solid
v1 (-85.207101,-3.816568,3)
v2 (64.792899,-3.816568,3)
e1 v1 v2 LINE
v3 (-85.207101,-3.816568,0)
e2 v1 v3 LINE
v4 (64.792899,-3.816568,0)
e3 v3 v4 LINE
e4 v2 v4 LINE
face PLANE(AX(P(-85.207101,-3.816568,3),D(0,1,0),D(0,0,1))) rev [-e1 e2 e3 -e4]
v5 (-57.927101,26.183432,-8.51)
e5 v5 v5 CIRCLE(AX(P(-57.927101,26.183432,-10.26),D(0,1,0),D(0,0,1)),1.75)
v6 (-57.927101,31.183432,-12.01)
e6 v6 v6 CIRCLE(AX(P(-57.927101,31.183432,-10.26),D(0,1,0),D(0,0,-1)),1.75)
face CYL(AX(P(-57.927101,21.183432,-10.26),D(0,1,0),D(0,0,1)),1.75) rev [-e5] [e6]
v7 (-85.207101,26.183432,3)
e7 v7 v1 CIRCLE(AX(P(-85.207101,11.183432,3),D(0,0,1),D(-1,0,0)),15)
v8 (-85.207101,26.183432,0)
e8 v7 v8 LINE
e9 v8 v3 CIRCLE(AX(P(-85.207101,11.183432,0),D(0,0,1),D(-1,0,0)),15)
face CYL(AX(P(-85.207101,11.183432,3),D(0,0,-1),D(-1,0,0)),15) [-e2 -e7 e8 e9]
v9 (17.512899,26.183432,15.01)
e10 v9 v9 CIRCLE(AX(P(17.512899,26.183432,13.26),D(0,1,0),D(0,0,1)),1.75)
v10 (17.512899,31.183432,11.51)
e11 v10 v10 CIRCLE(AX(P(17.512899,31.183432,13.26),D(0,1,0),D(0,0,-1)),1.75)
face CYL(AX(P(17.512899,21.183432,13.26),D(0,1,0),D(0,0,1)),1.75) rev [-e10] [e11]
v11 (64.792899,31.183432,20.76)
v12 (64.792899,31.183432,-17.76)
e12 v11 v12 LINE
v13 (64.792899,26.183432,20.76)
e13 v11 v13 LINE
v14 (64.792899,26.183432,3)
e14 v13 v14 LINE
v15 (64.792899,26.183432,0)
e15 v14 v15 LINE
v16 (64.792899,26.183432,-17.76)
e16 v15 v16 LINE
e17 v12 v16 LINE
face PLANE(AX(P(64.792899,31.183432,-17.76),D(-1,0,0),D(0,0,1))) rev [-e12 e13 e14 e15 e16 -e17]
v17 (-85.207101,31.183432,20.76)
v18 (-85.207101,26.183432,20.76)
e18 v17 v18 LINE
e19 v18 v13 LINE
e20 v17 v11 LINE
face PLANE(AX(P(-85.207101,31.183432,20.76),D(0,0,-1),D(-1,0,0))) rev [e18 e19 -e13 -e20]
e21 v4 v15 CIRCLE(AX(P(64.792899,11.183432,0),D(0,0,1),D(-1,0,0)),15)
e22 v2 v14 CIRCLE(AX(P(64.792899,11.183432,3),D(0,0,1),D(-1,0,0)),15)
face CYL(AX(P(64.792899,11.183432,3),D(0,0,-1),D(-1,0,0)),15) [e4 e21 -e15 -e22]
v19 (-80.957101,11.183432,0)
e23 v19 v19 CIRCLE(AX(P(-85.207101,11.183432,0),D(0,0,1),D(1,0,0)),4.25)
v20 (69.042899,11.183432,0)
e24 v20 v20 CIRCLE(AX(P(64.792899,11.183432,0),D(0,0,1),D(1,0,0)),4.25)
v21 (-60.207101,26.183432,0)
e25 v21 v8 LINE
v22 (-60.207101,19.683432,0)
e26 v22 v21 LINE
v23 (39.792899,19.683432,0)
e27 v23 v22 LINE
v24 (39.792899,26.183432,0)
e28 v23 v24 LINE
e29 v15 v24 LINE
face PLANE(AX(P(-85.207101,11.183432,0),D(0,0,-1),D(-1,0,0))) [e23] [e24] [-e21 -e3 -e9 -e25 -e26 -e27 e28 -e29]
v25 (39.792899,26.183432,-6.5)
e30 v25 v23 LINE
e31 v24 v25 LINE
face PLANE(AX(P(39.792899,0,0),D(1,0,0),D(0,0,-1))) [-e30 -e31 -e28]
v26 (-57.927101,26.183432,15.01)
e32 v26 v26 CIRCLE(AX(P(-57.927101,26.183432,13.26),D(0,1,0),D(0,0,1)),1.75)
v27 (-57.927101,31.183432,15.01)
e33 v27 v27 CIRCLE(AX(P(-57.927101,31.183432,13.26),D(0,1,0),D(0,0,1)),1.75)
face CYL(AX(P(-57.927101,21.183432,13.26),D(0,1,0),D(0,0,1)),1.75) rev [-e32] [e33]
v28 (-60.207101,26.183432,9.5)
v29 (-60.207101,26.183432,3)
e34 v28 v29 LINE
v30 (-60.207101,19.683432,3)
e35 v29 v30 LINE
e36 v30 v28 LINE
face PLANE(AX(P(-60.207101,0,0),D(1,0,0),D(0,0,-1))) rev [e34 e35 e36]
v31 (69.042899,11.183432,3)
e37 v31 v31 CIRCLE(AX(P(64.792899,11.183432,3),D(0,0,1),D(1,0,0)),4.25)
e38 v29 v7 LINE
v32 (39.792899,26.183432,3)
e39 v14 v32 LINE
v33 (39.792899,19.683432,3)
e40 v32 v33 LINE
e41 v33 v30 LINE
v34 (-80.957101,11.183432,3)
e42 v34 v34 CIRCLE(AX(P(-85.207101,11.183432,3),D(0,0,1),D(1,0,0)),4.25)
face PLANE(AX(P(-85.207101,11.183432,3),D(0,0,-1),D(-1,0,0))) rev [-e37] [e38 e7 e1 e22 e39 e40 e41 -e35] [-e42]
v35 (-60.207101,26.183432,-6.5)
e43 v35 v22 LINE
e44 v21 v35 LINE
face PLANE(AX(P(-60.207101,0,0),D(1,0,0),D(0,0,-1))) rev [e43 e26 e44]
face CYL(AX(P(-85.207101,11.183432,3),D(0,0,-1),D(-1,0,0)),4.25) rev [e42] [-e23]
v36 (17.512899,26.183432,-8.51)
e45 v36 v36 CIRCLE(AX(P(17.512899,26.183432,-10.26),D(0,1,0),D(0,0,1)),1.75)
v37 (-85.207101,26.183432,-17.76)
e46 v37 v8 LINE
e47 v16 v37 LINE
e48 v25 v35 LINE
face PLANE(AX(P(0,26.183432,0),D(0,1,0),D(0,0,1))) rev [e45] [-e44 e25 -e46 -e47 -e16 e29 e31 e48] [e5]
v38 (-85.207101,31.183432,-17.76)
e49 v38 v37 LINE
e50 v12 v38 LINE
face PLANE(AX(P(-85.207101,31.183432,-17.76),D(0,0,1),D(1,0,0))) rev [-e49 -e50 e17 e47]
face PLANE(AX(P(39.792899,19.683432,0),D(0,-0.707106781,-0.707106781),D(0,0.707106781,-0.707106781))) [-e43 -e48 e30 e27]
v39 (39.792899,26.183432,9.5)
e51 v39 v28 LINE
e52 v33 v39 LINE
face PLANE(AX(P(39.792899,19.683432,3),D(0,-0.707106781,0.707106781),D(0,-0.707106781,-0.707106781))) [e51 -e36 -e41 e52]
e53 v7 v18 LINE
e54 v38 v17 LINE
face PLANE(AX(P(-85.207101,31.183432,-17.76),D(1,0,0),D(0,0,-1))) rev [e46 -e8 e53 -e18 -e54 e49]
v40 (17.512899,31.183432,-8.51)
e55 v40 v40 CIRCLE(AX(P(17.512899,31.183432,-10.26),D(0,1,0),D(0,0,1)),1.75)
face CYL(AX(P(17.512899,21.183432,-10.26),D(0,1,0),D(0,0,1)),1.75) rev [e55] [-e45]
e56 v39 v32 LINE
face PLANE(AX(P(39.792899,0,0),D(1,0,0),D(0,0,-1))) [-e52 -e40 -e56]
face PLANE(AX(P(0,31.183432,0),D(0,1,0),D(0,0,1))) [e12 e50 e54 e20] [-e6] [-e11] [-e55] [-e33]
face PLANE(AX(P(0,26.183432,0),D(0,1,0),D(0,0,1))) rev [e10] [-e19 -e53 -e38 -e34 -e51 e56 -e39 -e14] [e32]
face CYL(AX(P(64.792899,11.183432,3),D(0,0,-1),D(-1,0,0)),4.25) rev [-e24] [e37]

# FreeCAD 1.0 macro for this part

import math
import FreeCAD as App
import Part
import Sketcher

V = App.Vector
Q = App.Units.Quantity

doc = App.newDocument("Part")
params = doc.addObject("Spreadsheet::Sheet", "Params")
for row, (alias, value) in enumerate([
    ("sketch1_radius", "15 mm"),
    ("sketch1_diameter", "8.5 mm"),
    ("sketch1_width", "150 mm"),
    ("pad1_length", "3 mm"),
    ("sketch2_width", "150 mm"),
    ("sketch2_height", "38.52 mm"),
    ("pad2_length", "5 mm"),
    ("sketch3_width", "6.5 mm"),
    ("pad3_length", "100 mm"),
    ("sketch4_diameter", "3.5 mm"),
    ("pocket1_length", "10 mm"),
], start=1):
    params.set(f"A{row}", alias)
    params.set(f"B{row}", "=" + value)
    params.setAlias(f"B{row}", alias)

body = doc.addObject("PartDesign::Body", "Body")

sketch1 = body.newObject("Sketcher::SketchObject", "Sketch")
sketch1.AttachmentSupport = (doc.getObject("XY_Plane"), [""])
sketch1.MapMode = "FlatFace"
sketch1.addGeometry([
    Part.LineSegment(V(64.8, 26.2, 0), V(-85.2, 26.2, 0)),
    Part.ArcOfCircle(Part.Circle(V(-85.2, 11.2, 0), V(0, 0, 1), 15), math.radians(90), math.radians(270)),
    Part.LineSegment(V(-85.2, -3.8, 0), V(64.8, -3.8, 0)),
    Part.ArcOfCircle(Part.Circle(V(64.8, 11.2, 0), V(0, 0, 1), 15), math.radians(-90), math.radians(90)),
    Part.Circle(V(64.8, 11.2, 0), V(0, 0, 1), 4.2),
    Part.Circle(V(-85.2, 11.2, 0), V(0, 0, 1), 4.2),
], False)
sketch1.addConstraint([
    Sketcher.Constraint("Tangent", 0, 2, 1, 1),
    Sketcher.Constraint("Tangent", 1, 2, 2, 1),
    Sketcher.Constraint("Tangent", 2, 2, 3, 1),
    Sketcher.Constraint("Tangent", 3, 2, 0, 1),
    Sketcher.Constraint("Horizontal", 0),
    Sketcher.Constraint("Horizontal", 2),
    Sketcher.Constraint("Coincident", 4, 3, 3, 3),
    Sketcher.Constraint("Coincident", 5, 3, 1, 3),
    Sketcher.Constraint("Equal", 4, 5),
    Sketcher.Constraint("Radius", 1, Q("15 mm")),
    Sketcher.Constraint("Diameter", 4, Q("8.5 mm")),
    Sketcher.Constraint("DistanceX", 0, 2, 0, 1, Q("150 mm")),
    Sketcher.Constraint("DistanceX", 1, 3, -1, 1, Q("85.207101 mm")),
    Sketcher.Constraint("DistanceY", -1, 1, 1, 3, Q("11.183432 mm")),
])
sketch1.setExpression("Constraints[9]", "Params.sketch1_radius")
sketch1.setExpression("Constraints[10]", "Params.sketch1_diameter")
sketch1.setExpression("Constraints[11]", "Params.sketch1_width")
pad1 = body.newObject("PartDesign::Pad", "Pad")
pad1.Profile = sketch1
pad1.setExpression("Length", "Params.pad1_length")

sketch2 = body.newObject("Sketcher::SketchObject", "Sketch001")
sketch2.AttachmentSupport = (doc.getObject("XZ_Plane"), [""])
sketch2.MapMode = "FlatFace"
sketch2.AttachmentOffset = App.Placement(V(0, 0, -26.183432), App.Rotation())
sketch2.addGeometry([
    Part.LineSegment(V(-85, -18, 0), V(-85, 21, 0)),
    Part.LineSegment(V(-85, 21, 0), V(65, 21, 0)),
    Part.LineSegment(V(65, 21, 0), V(65, -18, 0)),
    Part.LineSegment(V(65, -18, 0), V(-85, -18, 0)),
], False)
sketch2.addConstraint([
    Sketcher.Constraint("Coincident", 0, 2, 1, 1),
    Sketcher.Constraint("Coincident", 1, 2, 2, 1),
    Sketcher.Constraint("Coincident", 2, 2, 3, 1),
    Sketcher.Constraint("Coincident", 3, 2, 0, 1),
    Sketcher.Constraint("Vertical", 0),
    Sketcher.Constraint("Horizontal", 1),
    Sketcher.Constraint("Vertical", 2),
    Sketcher.Constraint("Horizontal", 3),
    Sketcher.Constraint("DistanceX", 1, 1, 1, 2, Q("150 mm")),
    Sketcher.Constraint("DistanceY", 0, 1, 0, 2, Q("38.52 mm")),
    Sketcher.Constraint("DistanceY", -1, 1, 0, 2, Q("20.76 mm")),
    Sketcher.Constraint("DistanceX", 0, 2, -1, 1, Q("85.207101 mm")),
])
sketch2.setExpression("Constraints[8]", "Params.sketch2_width")
sketch2.setExpression("Constraints[9]", "Params.sketch2_height")
pad2 = body.newObject("PartDesign::Pad", "Pad001")
pad2.Profile = sketch2
pad2.setExpression("Length", "Params.pad2_length")
pad2.Reversed = True

sketch3 = body.newObject("Sketcher::SketchObject", "Sketch002")
sketch3.AttachmentSupport = (doc.getObject("YZ_Plane"), [""])
sketch3.MapMode = "FlatFace"
sketch3.AttachmentOffset = App.Placement(V(0, 0, -60.207101), App.Rotation())
sketch3.addGeometry([
    Part.LineSegment(V(20, 3, 0), V(26, 10, 0)),
    Part.LineSegment(V(26, 10, 0), V(26, 3, 0)),
    Part.LineSegment(V(26, 3, 0), V(20, 3, 0)),
    Part.LineSegment(V(20, 0, 0), V(26, 0, 0)),
    Part.LineSegment(V(26, 0, 0), V(26, -6, 0)),
    Part.LineSegment(V(26, -6, 0), V(20, 0, 0)),
], False)
sketch3.addConstraint([
    Sketcher.Constraint("Coincident", 0, 2, 1, 1),
    Sketcher.Constraint("Coincident", 1, 2, 2, 1),
    Sketcher.Constraint("Coincident", 2, 2, 0, 1),
    Sketcher.Constraint("Coincident", 3, 2, 4, 1),
    Sketcher.Constraint("Coincident", 4, 2, 5, 1),
    Sketcher.Constraint("Coincident", 5, 2, 3, 1),
    Sketcher.Constraint("Vertical", 1),
    Sketcher.Constraint("Horizontal", 2),
    Sketcher.Constraint("Horizontal", 3),
    Sketcher.Constraint("Vertical", 4),
    Sketcher.Constraint("PointOnObject", 3, 2, -1),
    Sketcher.Constraint("Perpendicular", 0, 5),
    Sketcher.Constraint("Vertical", 1, 2, 3, 2),
    Sketcher.Constraint("Vertical", 2, 2, 5, 2),
    Sketcher.Constraint("Equal", 3, 1),
    Sketcher.Constraint("DistanceX", 2, 2, 2, 1, Q("6.5 mm")),
    Sketcher.Constraint("DistanceY", -1, 1, 1, 2, Q("3 mm")),
    Sketcher.Constraint("DistanceX", -1, 1, 0, 2, Q("26.183432 mm")),
])
sketch3.setExpression("Constraints[15]", "Params.sketch3_width")
pad3 = body.newObject("PartDesign::Pad", "Pad002")
pad3.Profile = sketch3
pad3.setExpression("Length", "Params.pad3_length")

sketch4 = body.newObject("Sketcher::SketchObject", "Sketch003")
sketch4.AttachmentSupport = (doc.getObject("XZ_Plane"), [""])
sketch4.MapMode = "FlatFace"
sketch4.AttachmentOffset = App.Placement(V(0, 0, -31.183432), App.Rotation())
sketch4.addGeometry([
    Part.Circle(V(17.5, -10.3, 0), V(0, 0, 1), 1.8),
    Part.Circle(V(17.5, 13.3, 0), V(0, 0, 1), 1.8),
    Part.Circle(V(-57.9, 13.3, 0), V(0, 0, 1), 1.8),
    Part.Circle(V(-57.9, -10.3, 0), V(0, 0, 1), 1.8),
], False)
sketch4.addConstraint([
    Sketcher.Constraint("Equal", 0, 1),
    Sketcher.Constraint("Equal", 1, 2),
    Sketcher.Constraint("Equal", 2, 3),
    Sketcher.Constraint("Horizontal", 1, 3, 2, 3),
    Sketcher.Constraint("Horizontal", 0, 3, 3, 3),
    Sketcher.Constraint("Vertical", 0, 3, 1, 3),
    Sketcher.Constraint("Vertical", 2, 3, 3, 3),
    Sketcher.Constraint("Diameter", 0, Q("3.5 mm")),
    Sketcher.Constraint("DistanceY", 0, 3, -1, 1, Q("10.26 mm")),
    Sketcher.Constraint("DistanceY", -1, 1, 1, 3, Q("13.26 mm")),
    Sketcher.Constraint("DistanceX", 2, 3, 1, 3, Q("75.44 mm")),
    Sketcher.Constraint("DistanceX", -1, 1, 0, 3, Q("17.512899 mm")),
])
sketch4.setExpression("Constraints[7]", "Params.sketch4_diameter")
pocket1 = body.newObject("PartDesign::Pocket", "Pocket")
pocket1.Profile = sketch4
pocket1.setExpression("Length", "Params.pocket1_length")
pocket1.Reversed = True

doc.recompute()
